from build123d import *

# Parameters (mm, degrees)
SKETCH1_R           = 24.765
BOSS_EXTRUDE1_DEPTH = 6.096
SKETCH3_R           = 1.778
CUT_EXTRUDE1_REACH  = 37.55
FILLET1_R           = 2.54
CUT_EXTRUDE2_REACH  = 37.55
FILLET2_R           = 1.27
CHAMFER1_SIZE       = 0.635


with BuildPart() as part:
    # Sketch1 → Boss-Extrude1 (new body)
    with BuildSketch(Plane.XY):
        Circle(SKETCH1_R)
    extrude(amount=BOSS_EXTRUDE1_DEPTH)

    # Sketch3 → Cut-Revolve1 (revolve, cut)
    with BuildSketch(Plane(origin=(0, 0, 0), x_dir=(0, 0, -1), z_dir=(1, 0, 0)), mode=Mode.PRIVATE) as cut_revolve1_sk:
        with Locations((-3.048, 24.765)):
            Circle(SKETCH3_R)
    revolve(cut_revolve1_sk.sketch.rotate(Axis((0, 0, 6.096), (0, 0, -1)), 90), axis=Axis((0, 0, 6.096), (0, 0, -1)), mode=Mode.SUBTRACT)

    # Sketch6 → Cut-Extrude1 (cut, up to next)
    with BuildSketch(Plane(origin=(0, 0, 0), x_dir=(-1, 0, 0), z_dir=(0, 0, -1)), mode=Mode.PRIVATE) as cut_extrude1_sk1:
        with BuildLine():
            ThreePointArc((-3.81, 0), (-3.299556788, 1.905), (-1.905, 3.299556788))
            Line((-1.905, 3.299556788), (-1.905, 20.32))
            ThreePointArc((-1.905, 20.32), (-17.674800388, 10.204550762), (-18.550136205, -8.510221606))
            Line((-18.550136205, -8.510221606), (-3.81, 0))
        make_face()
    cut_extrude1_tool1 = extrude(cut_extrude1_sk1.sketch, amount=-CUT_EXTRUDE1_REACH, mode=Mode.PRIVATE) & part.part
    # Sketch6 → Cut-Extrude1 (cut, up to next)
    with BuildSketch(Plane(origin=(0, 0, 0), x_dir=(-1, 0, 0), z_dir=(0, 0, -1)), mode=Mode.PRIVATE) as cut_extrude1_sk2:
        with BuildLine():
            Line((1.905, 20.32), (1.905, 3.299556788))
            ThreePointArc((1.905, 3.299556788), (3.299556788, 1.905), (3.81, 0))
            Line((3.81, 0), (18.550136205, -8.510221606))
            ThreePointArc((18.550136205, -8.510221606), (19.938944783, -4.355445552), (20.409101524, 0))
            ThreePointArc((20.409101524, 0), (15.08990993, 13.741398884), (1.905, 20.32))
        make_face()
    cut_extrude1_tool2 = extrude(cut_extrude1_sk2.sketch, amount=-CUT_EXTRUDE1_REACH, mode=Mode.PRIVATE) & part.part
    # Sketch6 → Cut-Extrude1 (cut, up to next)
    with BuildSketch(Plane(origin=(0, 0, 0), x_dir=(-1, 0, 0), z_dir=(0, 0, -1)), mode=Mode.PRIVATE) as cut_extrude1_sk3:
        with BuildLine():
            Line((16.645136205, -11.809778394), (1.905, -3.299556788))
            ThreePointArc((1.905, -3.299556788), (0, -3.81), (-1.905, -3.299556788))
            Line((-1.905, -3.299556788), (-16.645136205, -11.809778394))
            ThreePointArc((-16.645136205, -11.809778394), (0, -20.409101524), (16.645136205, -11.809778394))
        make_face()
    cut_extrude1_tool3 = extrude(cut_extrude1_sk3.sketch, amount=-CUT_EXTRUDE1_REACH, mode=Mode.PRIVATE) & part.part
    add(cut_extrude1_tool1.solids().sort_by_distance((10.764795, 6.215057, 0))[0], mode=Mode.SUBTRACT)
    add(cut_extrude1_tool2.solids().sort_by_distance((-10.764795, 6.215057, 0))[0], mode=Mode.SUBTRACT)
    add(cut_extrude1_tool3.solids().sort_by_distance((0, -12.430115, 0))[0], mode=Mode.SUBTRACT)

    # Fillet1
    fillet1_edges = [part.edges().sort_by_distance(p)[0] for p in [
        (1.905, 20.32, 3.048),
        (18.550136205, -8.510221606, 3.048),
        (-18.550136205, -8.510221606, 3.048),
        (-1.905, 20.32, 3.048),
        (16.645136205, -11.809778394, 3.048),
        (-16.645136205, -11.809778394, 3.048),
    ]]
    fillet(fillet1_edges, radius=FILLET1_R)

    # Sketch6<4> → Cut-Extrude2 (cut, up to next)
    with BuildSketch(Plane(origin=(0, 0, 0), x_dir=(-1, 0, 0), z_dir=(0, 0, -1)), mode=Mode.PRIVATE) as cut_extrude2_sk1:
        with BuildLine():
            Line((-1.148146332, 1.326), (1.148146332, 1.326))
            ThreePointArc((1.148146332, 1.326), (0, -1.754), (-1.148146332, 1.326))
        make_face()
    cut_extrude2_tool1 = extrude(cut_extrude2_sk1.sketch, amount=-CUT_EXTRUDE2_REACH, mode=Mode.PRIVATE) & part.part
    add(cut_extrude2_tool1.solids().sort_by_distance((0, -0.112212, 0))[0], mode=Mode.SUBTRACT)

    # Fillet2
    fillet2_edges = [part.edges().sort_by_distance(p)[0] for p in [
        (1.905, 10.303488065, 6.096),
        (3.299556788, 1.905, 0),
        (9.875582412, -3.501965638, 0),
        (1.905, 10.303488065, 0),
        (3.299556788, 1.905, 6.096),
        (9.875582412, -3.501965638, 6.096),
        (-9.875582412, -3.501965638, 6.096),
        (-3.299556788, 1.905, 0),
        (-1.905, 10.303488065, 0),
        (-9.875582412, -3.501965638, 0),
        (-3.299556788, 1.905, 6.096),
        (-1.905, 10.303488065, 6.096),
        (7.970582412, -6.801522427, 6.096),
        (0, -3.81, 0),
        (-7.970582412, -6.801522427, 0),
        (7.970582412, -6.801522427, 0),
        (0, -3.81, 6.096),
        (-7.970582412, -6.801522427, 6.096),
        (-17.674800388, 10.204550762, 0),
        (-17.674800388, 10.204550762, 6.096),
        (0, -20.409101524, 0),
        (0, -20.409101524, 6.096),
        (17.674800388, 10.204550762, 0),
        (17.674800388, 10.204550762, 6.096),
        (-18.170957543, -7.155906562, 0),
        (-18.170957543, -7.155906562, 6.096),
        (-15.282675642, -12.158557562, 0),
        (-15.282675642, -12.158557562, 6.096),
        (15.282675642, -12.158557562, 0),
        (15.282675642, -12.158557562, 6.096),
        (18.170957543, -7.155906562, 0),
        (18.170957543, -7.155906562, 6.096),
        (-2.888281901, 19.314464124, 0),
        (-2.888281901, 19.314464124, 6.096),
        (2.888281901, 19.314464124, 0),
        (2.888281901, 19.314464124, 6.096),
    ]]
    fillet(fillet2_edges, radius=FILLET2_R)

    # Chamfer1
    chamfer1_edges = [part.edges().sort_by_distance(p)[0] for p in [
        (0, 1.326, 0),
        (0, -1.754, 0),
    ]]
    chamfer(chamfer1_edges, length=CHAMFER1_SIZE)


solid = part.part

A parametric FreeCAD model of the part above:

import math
import FreeCAD as App
import Part
import Sketcher
Q = App.Units.Quantity


def edges_at(feature, points):
    """Names of the edges that pass closest to the given points."""
    edges = feature.Shape.Edges
    near = lambda p: min(range(len(edges)), key=lambda i: edges[i].distToShape(Part.Vertex(*p))[0])
    return sorted({f"Edge{near(p) + 1}" for p in points})

doc = App.newDocument("Part")
params = doc.addObject("Spreadsheet::Sheet", "Params")
for row, (alias, value) in enumerate([
    ("sketch1_diameter", "1.95 in"),
    ("pad1_length", "0.24 in"),
    ("sketch2_diameter", "0.14 in"),
    ("groove_angle", "360 deg"),
    ("sketch3_radius", "0.15 in"),
    ("sketch4_radius", "0.15 in"),
    ("sketch5_radius", "0.15 in"),
    ("fillet_radius", "0.1 in"),
    ("fillet2_radius", "0.05 in"),
    ("chamfer_size", "0.025 in"),
], start=1):
    params.set(f"A{row}", alias)
    params.set(f"B{row}", "=" + value)
    params.setAlias(f"B{row}", alias)

body = doc.addObject("PartDesign::Body", "Body")

# Sketch on XY plane
sketch1 = doc.addObject("Sketcher::SketchObject", "Sketch")
body.addObject(sketch1)
sketch1.AttachmentSupport = (doc.XY_Plane, [""])
sketch1.MapMode = "FlatFace"
sketch1.addGeometry(Part.Circle(App.Vector(0, 0, 0), App.Vector(0, 0, 1), 25), False)
sketch1.addConstraint(Sketcher.Constraint("Coincident", 0, 3, -1, 1))
sketch1.addConstraint(Sketcher.Constraint("Diameter", 0, Q("1.95 in")))
sketch1.setExpression("Constraints[1]", "Params.sketch1_diameter")
pad1 = doc.addObject("PartDesign::Pad", "Pad")
body.addObject(pad1)
pad1.Profile = sketch1
pad1.setExpression("Length", "Params.pad1_length")

# Sketch on YZ plane
sketch2 = doc.addObject("Sketcher::SketchObject", "Sketch001")
body.addObject(sketch2)
sketch2.AttachmentSupport = (doc.YZ_Plane, [""])
sketch2.MapMode = "FlatFace"
sketch2.addGeometry(Part.Circle(App.Vector(24.8, 3, 0), App.Vector(0, 0, 1), 1.8), False)
sketch2.addConstraint(Sketcher.Constraint("Diameter", 0, Q("0.14 in")))
sketch2.addConstraint(Sketcher.Constraint("DistanceY", -1, 1, 0, 3, Q("0.12 in")))
sketch2.addConstraint(Sketcher.Constraint("DistanceX", -1, 1, 0, 3, Q("0.975 in")))
sketch2.setExpression("Constraints[0]", "Params.sketch2_diameter")
groove = doc.addObject("PartDesign::Groove", "Groove")
body.addObject(groove)
groove.Profile = sketch2
groove.ReferenceAxis = (sketch2, ["V_Axis"])
groove.setExpression("Angle", "Params.groove_angle")

# Sketch on XY plane
sketch3 = doc.addObject("Sketcher::SketchObject", "Sketch002")
body.addObject(sketch3)
sketch3.AttachmentSupport = (doc.XY_Plane, [""])
sketch3.MapMode = "FlatFace"
sketch3.addGeometry(Part.ArcOfCircle(Part.Circle(App.Vector(0, 0, 0), App.Vector(0, 0, 1), 3.8), math.radians(0), math.radians(60)), False)
sketch3.addGeometry(Part.LineSegment(App.Vector(1.9, 3.3, 0), App.Vector(1.9, 20.3, 0)), False)
sketch3.addGeometry(Part.ArcOfCircle(Part.Circle(App.Vector(0, 0, 0), App.Vector(0, 0, 1), 20.4), math.radians(-25), math.radians(85)), False)
sketch3.addGeometry(Part.LineSegment(App.Vector(18.6, -8.5, 0), App.Vector(3.8, 0, 0)), False)
sketch3.addConstraint(Sketcher.Constraint("Coincident", 0, 2, 1, 1))
sketch3.addConstraint(Sketcher.Constraint("Coincident", 1, 2, 2, 2))
sketch3.addConstraint(Sketcher.Constraint("Coincident", 2, 1, 3, 1))
sketch3.addConstraint(Sketcher.Constraint("Coincident", 3, 2, 0, 1))
sketch3.addConstraint(Sketcher.Constraint("Vertical", 1))
sketch3.addConstraint(Sketcher.Constraint("Coincident", 0, 3, -1, 1))
sketch3.addConstraint(Sketcher.Constraint("Coincident", 2, 3, -1, 1))
sketch3.addConstraint(Sketcher.Constraint("PointOnObject", 3, 2, -1))
sketch3.addConstraint(Sketcher.Constraint("Radius", 0, Q("0.15 in")))
sketch3.addConstraint(Sketcher.Constraint("Angle", 3, Q("150 deg")))
sketch3.addConstraint(Sketcher.Constraint("DistanceY", -1, 1, 1, 2, Q("0.8 in")))
sketch3.addConstraint(Sketcher.Constraint("Radius", 2, 20.409102))
sketch3.setExpression("Constraints[8]", "Params.sketch3_radius")
pocket1 = doc.addObject("PartDesign::Pocket", "Pocket")
body.addObject(pocket1)
pocket1.Profile = sketch3
pocket1.Type = "UpToFirst"
pocket1.Reversed = True

# Sketch on XY plane
sketch4 = doc.addObject("Sketcher::SketchObject", "Sketch003")
body.addObject(sketch4)
sketch4.AttachmentSupport = (doc.XY_Plane, [""])
sketch4.MapMode = "FlatFace"
sketch4.addGeometry(Part.LineSegment(App.Vector(-1.9, 20.3, 0), App.Vector(-1.9, 3.3, 0)), False)
sketch4.addGeometry(Part.ArcOfCircle(Part.Circle(App.Vector(0, 0, 0), App.Vector(0, 0, 1), 3.8), math.radians(120), math.radians(180)), False)
sketch4.addGeometry(Part.LineSegment(App.Vector(-3.8, 0, 0), App.Vector(-18.6, -8.5, 0)), False)
sketch4.addGeometry(Part.ArcOfCircle(Part.Circle(App.Vector(0, 0, 0), App.Vector(0, 0, 1), 20.4), math.radians(180), math.radians(205)), False)
sketch4.addGeometry(Part.ArcOfCircle(Part.Circle(App.Vector(0, 0, 0), App.Vector(0, 0, 1), 20.4), math.radians(95), math.radians(180)), False)
sketch4.addConstraint(Sketcher.Constraint("Coincident", 0, 2, 1, 1))
sketch4.addConstraint(Sketcher.Constraint("Coincident", 1, 2, 2, 1))
sketch4.addConstraint(Sketcher.Constraint("Coincident", 2, 2, 3, 2))
sketch4.addConstraint(Sketcher.Constraint("Tangent", 3, 1, 4, 2))
sketch4.addConstraint(Sketcher.Constraint("Coincident", 4, 1, 0, 1))
sketch4.addConstraint(Sketcher.Constraint("Vertical", 0))
sketch4.addConstraint(Sketcher.Constraint("Coincident", 1, 3, -1, 1))
sketch4.addConstraint(Sketcher.Constraint("Coincident", 3, 3, -1, 1))
sketch4.addConstraint(Sketcher.Constraint("Equal", 3, 4))
sketch4.addConstraint(Sketcher.Constraint("PointOnObject", 1, 2, -1))
sketch4.addConstraint(Sketcher.Constraint("PointOnObject", 3, 1, -1))
sketch4.addConstraint(Sketcher.Constraint("Radius", 1, Q("0.15 in")))
sketch4.addConstraint(Sketcher.Constraint("Angle", 2, Q("-150 deg")))
sketch4.addConstraint(Sketcher.Constraint("DistanceY", -1, 1, 4, 1, Q("0.8 in")))
sketch4.addConstraint(Sketcher.Constraint("Radius", 3, 20.409102))
sketch4.setExpression("Constraints[11]", "Params.sketch4_radius")
pocket2 = doc.addObject("PartDesign::Pocket", "Pocket001")
body.addObject(pocket2)
pocket2.Profile = sketch4
pocket2.Type = "UpToFirst"
pocket2.Reversed = True

# Sketch on XY plane
sketch5 = doc.addObject("Sketcher::SketchObject", "Sketch004")
body.addObject(sketch5)
sketch5.AttachmentSupport = (doc.XY_Plane, [""])
sketch5.MapMode = "FlatFace"
sketch5.addGeometry(Part.LineSegment(App.Vector(-16.6, -11.8, 0), App.Vector(-1.9, -3.3, 0)), False)
sketch5.addGeometry(Part.ArcOfCircle(Part.Circle(App.Vector(0, 0, 0), App.Vector(0, 0, 1), 3.8), math.radians(-120), math.radians(-60)), False)
sketch5.addGeometry(Part.LineSegment(App.Vector(1.9, -3.3, 0), App.Vector(16.6, -11.8, 0)), False)
sketch5.addGeometry(Part.ArcOfCircle(Part.Circle(App.Vector(0, 0, 0), App.Vector(0, 0, 1), 20.4), math.radians(-145), math.radians(-35)), False)
sketch5.addConstraint(Sketcher.Constraint("Coincident", 0, 2, 1, 1))
sketch5.addConstraint(Sketcher.Constraint("Coincident", 1, 2, 2, 1))
sketch5.addConstraint(Sketcher.Constraint("Coincident", 2, 2, 3, 2))
sketch5.addConstraint(Sketcher.Constraint("Coincident", 3, 1, 0, 1))
sketch5.addConstraint(Sketcher.Constraint("Coincident", 1, 3, -1, 1))
sketch5.addConstraint(Sketcher.Constraint("Coincident", 3, 3, -1, 1))
sketch5.addConstraint(Sketcher.Constraint("Horizontal", 0, 2, 1, 2))
sketch5.addConstraint(Sketcher.Constraint("Horizontal", 2, 2, 3, 1))
sketch5.addConstraint(Sketcher.Constraint("Radius", 1, Q("0.15 in")))
sketch5.addConstraint(Sketcher.Constraint("Angle", 0, Q("30 deg")))
sketch5.addConstraint(Sketcher.Constraint("Radius", 3, 20.409102))
sketch5.addConstraint(Sketcher.Constraint("DistanceX", 0, 2, 1, 2, Q("0.15 in")))
sketch5.setExpression("Constraints[8]", "Params.sketch5_radius")
pocket3 = doc.addObject("PartDesign::Pocket", "Pocket002")
body.addObject(pocket3)
pocket3.Profile = sketch5
pocket3.Type = "UpToFirst"
pocket3.Reversed = True
doc.recompute()

fillet = doc.addObject("PartDesign::Fillet", "Fillet")
body.addObject(fillet)
fillet.Base = (pocket3, edges_at(pocket3, [
    (1.905, 20.32, 3.048),
    (18.55, -8.51, 3.048),
    (-18.55, -8.51, 3.048),
    (-1.905, 20.32, 3.048),
    (16.645, -11.81, 3.048),
    (-16.645, -11.81, 3.048),
]))
fillet.setExpression("Radius", "Params.fillet_radius")

# Sketch on XY plane
sketch6 = doc.addObject("Sketcher::SketchObject", "Sketch005")
body.addObject(sketch6)
sketch6.AttachmentSupport = (doc.XY_Plane, [""])
sketch6.MapMode = "FlatFace"
sketch6.addGeometry(Part.LineSegment(App.Vector(-1.1, 1.3, 0), App.Vector(1.1, 1.3, 0)), False)
sketch6.addGeometry(Part.ArcOfCircle(Part.Circle(App.Vector(0, 0, 0), App.Vector(0, 0, 1), 1.8), math.radians(131), math.radians(409)), False)
sketch6.addConstraint(Sketcher.Constraint("Coincident", 0, 1, 1, 1))
sketch6.addConstraint(Sketcher.Constraint("Coincident", 1, 2, 0, 2))
sketch6.addConstraint(Sketcher.Constraint("Horizontal", 0))
sketch6.addConstraint(Sketcher.Constraint("Coincident", 1, 3, -1, 1))
sketch6.addConstraint(Sketcher.Constraint("Radius", 1, 1.754))
sketch6.addConstraint(Sketcher.Constraint("DistanceY", -1, 1, 0, 1, 1.326))
pocket4 = doc.addObject("PartDesign::Pocket", "Pocket003")
body.addObject(pocket4)
pocket4.Profile = sketch6
pocket4.Type = "UpToFirst"
pocket4.Reversed = True
doc.recompute()

fillet2 = doc.addObject("PartDesign::Fillet", "Fillet001")
body.addObject(fillet2)
fillet2.Base = (pocket4, edges_at(pocket4, [
    (1.905, 10.303, 6.096),
    (3.3, 1.905, 0),
    (9.876, -3.502, 0),
    (1.905, 10.303, 0),
    (3.3, 1.905, 6.096),
    (9.876, -3.502, 6.096),
    (-9.876, -3.502, 6.096),
    (-3.3, 1.905, 0),
    (-1.905, 10.303, 0),
    (-9.876, -3.502, 0),
    (-3.3, 1.905, 6.096),
    (-1.905, 10.303, 6.096),
    (7.971, -6.802, 6.096),
    (0, -3.81, 0),
    (-7.971, -6.802, 0),
    (7.971, -6.802, 0),
    (0, -3.81, 6.096),
    (-7.971, -6.802, 6.096),
    (-16.127, 12.508, 0),
    (-16.127, 12.508, 6.096),
    (0, -20.409, 0),
    (0, -20.409, 6.096),
    (17.675, 10.205, 0),
    (17.675, 10.205, 6.096),
    (-18.171, -7.156, 0),
    (-18.171, -7.156, 6.096),
    (-15.283, -12.159, 0),
    (-15.283, -12.159, 6.096),
    (15.283, -12.159, 0),
    (15.283, -12.159, 6.096),
    (18.171, -7.156, 0),
    (18.171, -7.156, 6.096),
    (-2.888, 19.314, 0),
    (-2.888, 19.314, 6.096),
    (2.888, 19.314, 0),
    (2.888, 19.314, 6.096),
]))
fillet2.setExpression("Radius", "Params.fillet2_radius")
doc.recompute()

chamfer = doc.addObject("PartDesign::Chamfer", "Chamfer")
body.addObject(chamfer)
chamfer.Base = (fillet2, edges_at(fillet2, [(0, 1.326, 0), (0, -1.754, 0)]))
chamfer.setExpression("Size", "Params.chamfer_size")

doc.recompute()
